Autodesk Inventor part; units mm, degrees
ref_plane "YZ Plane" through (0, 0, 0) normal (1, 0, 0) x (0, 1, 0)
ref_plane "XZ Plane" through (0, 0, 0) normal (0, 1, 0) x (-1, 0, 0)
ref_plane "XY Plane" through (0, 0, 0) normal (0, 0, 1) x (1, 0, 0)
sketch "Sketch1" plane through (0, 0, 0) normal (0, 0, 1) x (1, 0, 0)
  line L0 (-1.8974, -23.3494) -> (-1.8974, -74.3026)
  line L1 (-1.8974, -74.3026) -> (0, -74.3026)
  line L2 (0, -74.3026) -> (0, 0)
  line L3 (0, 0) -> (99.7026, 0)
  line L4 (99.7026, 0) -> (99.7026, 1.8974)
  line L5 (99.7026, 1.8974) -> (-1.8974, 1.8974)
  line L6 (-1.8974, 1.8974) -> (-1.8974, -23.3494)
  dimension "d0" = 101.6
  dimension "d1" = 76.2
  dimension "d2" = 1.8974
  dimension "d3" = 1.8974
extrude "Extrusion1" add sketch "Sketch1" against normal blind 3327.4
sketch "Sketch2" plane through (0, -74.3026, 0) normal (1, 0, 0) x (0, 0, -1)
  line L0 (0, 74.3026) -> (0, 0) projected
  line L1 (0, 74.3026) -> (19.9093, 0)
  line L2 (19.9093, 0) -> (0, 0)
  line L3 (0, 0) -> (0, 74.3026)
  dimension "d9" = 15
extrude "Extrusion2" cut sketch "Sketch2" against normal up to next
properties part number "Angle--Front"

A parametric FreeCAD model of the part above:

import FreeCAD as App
import Part
import Sketcher
Q = App.Units.Quantity


def add_polygon(sketch, points):
    """Adds a closed chain of lines whose ends are joined by coincident constraints."""
    first, n = sketch.GeometryCount, len(points)
    for a, b in zip(points, points[1:] + points[:1]):
        sketch.addGeometry(Part.LineSegment(App.Vector(*a, 0), App.Vector(*b, 0)), False)
    for i in range(n):
        sketch.addConstraint(Sketcher.Constraint("Coincident", first + i, 2, first + (i + 1) % n, 1))

doc = App.newDocument("Part")
params = doc.addObject("Spreadsheet::Sheet", "Params")
for row, (alias, value) in enumerate([
    ("sketch1_width", "4 in"),
    ("sketch1_height", "3 in"),
    ("pad1_length", "131 in"),
], start=1):
    params.set(f"A{row}", alias)
    params.set(f"B{row}", "=" + value)
    params.setAlias(f"B{row}", alias)

body = doc.addObject("PartDesign::Body", "Body")

# Sketch on XY plane
sketch1 = body.newObject("Sketcher::SketchObject", "Sketch")
sketch1.AttachmentSupport = (doc.getObject("XY_Plane"), [""])
sketch1.MapMode = "FlatFace"
add_polygon(sketch1, [(-1.9, 1.9), (-1.9, -74.3), (0, -74.3), (0, 0), (99.7, 0), (99.7, 1.9)])  # lines 0-5
sketch1.addConstraint(Sketcher.Constraint("Vertical", 0))
sketch1.addConstraint(Sketcher.Constraint("Horizontal", 1))
sketch1.addConstraint(Sketcher.Constraint("Vertical", 2))
sketch1.addConstraint(Sketcher.Constraint("Horizontal", 3))
sketch1.addConstraint(Sketcher.Constraint("Vertical", 4))
sketch1.addConstraint(Sketcher.Constraint("Horizontal", 5))
sketch1.addConstraint(Sketcher.Constraint("Coincident", 2, 2, -1, 1))
sketch1.addConstraint(Sketcher.Constraint("Equal", 1, 4))
sketch1.addConstraint(Sketcher.Constraint("DistanceX", 5, 2, 5, 1, Q("4 in")))
sketch1.addConstraint(Sketcher.Constraint("DistanceY", 0, 2, 0, 1, Q("3 in")))
sketch1.addConstraint(Sketcher.Constraint("DistanceX", 1, 1, 1, 2, Q("0.0747 in")))
sketch1.setExpression("Constraints[14]", "Params.sketch1_width")
sketch1.setExpression("Constraints[15]", "Params.sketch1_height")
pad1 = body.newObject("PartDesign::Pad", "Pad")
pad1.Profile = sketch1
pad1.setExpression("Length", "Params.pad1_length")
pad1.Reversed = True

# Sketch on YZ plane
sketch2 = body.newObject("Sketcher::SketchObject", "Sketch001")
sketch2.AttachmentSupport = (doc.getObject("YZ_Plane"), [""])
sketch2.MapMode = "FlatFace"
add_polygon(sketch2, [(-74, -20), (0, 0), (-74, 0)])  # lines 0-2
sketch2.addConstraint(Sketcher.Constraint("Horizontal", 1))
sketch2.addConstraint(Sketcher.Constraint("Vertical", 2))
sketch2.addConstraint(Sketcher.Constraint("Coincident", 0, 2, -1, 1))
sketch2.addConstraint(Sketcher.Constraint("Angle", 0, Q("15 deg")))
sketch2.addConstraint(Sketcher.Constraint("DistanceX", 1, 2, 1, 1, Q("2.9253 in")))
pocket1 = body.newObject("PartDesign::Pocket", "Pocket")
pocket1.Profile = sketch2
pocket1.Type = "UpToFirst"

doc.recompute()
